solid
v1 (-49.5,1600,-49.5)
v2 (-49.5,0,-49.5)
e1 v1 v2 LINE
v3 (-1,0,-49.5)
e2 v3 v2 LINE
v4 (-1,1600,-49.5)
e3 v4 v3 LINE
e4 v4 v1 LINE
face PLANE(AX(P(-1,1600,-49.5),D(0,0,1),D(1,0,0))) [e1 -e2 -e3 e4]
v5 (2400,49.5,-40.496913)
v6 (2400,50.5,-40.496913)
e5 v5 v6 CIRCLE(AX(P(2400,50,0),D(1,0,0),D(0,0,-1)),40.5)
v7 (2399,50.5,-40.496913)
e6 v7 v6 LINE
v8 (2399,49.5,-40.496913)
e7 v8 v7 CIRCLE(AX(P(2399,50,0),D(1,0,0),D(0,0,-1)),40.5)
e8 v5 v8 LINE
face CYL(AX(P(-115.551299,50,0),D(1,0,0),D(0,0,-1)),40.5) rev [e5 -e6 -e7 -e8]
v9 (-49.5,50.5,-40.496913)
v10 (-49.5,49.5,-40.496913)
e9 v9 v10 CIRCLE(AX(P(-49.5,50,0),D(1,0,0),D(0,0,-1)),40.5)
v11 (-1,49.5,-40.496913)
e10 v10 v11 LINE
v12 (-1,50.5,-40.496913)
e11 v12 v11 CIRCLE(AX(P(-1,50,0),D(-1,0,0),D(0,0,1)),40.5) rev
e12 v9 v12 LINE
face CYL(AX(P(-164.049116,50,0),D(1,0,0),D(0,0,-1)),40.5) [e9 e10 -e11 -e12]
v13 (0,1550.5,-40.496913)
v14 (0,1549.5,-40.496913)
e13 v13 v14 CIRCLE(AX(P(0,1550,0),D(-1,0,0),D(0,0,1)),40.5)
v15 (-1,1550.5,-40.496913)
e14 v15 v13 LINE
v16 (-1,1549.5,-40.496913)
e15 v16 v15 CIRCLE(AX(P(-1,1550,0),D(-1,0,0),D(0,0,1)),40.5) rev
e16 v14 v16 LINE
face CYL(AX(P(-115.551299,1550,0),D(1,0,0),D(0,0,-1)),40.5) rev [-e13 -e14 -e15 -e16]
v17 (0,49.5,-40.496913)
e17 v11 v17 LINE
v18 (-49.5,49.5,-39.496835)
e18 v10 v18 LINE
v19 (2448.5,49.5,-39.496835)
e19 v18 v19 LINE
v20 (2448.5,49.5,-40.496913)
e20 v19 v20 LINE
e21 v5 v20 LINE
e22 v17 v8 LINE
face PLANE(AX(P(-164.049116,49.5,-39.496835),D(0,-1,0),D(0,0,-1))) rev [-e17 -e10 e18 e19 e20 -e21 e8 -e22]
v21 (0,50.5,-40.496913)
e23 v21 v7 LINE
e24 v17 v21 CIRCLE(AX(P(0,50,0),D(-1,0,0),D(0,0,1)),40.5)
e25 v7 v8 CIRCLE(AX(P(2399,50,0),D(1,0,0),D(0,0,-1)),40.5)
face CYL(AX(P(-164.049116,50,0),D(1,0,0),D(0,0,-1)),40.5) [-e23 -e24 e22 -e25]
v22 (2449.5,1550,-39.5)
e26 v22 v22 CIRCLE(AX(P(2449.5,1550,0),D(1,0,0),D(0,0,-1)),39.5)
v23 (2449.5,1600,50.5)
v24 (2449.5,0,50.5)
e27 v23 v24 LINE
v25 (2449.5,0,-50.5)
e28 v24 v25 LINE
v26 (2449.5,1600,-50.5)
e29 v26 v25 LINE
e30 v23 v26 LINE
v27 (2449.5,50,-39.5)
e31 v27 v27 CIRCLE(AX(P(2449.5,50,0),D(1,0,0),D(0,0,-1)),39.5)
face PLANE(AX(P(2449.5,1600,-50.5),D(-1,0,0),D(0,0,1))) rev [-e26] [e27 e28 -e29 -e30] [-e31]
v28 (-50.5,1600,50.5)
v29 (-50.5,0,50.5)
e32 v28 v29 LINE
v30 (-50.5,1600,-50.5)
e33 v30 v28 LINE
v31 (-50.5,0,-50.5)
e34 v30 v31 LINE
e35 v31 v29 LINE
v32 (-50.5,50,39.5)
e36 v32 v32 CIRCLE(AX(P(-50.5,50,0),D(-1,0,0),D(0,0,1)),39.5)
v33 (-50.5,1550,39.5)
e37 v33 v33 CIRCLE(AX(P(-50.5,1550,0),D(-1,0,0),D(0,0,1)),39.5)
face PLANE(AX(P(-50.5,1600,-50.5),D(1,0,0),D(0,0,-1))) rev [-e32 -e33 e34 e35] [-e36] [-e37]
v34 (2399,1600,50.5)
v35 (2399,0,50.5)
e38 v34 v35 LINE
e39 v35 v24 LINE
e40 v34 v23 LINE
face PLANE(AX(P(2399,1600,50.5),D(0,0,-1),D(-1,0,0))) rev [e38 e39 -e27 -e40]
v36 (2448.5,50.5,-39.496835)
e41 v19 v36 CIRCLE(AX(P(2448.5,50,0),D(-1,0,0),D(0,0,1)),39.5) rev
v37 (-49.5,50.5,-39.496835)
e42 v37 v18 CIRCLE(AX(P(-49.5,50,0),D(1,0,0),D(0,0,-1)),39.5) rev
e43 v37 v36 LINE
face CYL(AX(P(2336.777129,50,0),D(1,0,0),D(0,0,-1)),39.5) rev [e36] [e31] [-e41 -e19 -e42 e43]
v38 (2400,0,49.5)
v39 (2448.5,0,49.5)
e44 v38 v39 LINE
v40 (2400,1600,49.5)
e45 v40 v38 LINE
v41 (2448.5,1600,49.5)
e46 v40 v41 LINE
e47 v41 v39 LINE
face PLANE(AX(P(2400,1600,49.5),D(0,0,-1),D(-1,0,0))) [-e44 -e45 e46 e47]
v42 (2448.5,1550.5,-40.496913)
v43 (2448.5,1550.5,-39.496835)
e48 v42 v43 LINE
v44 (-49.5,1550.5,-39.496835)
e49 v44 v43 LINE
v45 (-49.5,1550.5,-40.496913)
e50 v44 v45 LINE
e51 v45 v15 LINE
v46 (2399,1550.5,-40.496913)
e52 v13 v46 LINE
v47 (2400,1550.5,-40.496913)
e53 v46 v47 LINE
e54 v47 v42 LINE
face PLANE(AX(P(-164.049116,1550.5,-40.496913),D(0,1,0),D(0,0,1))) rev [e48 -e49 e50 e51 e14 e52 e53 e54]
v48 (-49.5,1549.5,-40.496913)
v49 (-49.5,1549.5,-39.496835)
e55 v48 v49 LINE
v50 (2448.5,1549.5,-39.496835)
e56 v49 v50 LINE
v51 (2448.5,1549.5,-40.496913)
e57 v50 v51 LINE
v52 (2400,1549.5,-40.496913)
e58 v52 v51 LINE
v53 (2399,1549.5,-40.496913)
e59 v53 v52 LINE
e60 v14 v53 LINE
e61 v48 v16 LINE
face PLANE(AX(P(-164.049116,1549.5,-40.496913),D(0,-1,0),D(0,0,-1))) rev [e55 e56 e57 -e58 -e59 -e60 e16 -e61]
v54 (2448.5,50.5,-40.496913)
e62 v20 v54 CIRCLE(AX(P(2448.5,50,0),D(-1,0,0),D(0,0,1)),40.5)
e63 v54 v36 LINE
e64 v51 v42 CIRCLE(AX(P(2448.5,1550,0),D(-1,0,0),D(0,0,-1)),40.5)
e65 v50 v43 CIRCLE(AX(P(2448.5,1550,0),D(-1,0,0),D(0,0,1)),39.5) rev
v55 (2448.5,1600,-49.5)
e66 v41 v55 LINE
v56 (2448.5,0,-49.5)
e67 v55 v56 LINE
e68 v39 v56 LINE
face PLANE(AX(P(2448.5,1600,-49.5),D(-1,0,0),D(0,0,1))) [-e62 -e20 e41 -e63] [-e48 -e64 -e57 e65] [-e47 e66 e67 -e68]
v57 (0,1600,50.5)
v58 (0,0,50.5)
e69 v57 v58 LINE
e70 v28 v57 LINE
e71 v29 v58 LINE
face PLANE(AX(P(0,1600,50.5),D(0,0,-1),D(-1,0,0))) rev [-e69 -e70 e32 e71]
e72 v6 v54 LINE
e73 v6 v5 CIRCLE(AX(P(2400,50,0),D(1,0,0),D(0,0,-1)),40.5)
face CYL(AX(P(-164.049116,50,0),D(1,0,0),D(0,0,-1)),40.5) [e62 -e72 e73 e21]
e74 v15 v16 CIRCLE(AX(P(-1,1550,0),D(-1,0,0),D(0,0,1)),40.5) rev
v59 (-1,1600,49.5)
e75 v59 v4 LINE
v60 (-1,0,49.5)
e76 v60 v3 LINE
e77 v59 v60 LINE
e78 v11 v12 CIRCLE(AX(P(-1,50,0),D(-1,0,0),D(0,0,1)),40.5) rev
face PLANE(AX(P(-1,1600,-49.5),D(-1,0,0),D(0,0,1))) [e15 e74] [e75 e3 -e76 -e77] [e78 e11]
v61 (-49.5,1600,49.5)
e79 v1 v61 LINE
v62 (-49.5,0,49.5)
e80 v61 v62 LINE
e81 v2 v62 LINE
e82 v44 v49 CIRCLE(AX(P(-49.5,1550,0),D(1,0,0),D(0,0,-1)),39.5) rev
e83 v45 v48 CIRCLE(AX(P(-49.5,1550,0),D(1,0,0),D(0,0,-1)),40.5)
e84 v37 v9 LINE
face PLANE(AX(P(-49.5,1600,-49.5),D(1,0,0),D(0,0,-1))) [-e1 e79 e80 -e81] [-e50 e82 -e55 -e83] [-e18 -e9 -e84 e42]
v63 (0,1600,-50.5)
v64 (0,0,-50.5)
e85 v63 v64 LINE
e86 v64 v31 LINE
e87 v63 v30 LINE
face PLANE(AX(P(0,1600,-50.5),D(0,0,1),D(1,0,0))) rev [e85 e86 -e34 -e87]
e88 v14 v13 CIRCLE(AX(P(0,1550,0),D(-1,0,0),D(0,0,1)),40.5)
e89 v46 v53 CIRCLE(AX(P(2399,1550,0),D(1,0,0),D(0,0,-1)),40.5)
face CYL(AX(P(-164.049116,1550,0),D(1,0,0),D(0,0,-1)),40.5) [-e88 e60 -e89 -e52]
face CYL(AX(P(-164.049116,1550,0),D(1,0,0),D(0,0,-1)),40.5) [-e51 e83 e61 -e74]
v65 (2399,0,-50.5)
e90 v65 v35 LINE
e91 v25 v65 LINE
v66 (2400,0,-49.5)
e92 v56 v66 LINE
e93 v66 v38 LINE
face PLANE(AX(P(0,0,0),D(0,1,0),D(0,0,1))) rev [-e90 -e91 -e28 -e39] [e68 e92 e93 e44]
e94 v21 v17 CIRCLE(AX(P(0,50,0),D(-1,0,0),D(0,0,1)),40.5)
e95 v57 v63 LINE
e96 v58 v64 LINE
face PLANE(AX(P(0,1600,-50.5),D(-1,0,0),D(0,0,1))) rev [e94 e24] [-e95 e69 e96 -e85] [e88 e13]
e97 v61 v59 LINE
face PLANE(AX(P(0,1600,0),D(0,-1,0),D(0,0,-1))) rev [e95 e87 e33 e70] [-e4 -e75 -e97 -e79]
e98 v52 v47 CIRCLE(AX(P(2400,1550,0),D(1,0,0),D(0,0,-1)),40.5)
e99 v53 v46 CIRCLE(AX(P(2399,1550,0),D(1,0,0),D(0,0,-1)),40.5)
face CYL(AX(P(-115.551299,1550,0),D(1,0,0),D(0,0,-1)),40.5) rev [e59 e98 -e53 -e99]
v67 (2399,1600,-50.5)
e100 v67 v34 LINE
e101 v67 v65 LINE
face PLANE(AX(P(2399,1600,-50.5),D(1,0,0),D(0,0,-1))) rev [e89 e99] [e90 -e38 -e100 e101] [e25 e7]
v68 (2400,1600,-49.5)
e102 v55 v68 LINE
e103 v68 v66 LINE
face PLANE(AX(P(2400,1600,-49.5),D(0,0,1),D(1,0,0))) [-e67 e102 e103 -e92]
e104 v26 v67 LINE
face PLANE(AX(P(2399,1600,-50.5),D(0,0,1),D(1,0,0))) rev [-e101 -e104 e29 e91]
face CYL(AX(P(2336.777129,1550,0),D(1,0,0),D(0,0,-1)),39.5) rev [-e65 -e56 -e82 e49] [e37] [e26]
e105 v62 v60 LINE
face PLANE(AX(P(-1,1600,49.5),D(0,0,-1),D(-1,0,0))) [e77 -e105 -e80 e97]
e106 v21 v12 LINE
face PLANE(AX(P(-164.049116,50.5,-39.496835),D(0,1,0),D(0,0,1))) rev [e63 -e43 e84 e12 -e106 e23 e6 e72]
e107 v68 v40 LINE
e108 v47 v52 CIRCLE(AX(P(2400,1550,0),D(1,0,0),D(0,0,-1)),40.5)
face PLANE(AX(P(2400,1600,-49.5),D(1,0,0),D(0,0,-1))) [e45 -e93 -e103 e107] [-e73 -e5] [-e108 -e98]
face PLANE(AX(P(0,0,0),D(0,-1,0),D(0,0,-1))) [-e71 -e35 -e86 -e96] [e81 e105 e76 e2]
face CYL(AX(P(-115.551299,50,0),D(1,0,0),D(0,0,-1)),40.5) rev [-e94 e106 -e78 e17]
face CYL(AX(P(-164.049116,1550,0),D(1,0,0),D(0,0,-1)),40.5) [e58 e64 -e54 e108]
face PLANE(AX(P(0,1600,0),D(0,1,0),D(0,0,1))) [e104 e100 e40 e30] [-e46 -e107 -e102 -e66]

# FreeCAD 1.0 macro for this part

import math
import FreeCAD as App
import Part
import Sketcher

V = App.Vector
Q = App.Units.Quantity


def add_polygon(sketch, points):
    """Adds a closed chain of lines whose ends are joined by coincident constraints."""
    first, n = sketch.GeometryCount, len(points)
    for a, b in zip(points, points[1:] + points[:1]):
        sketch.addGeometry(Part.LineSegment(App.Vector(*a, 0), App.Vector(*b, 0)), False)
    for i in range(n):
        sketch.addConstraint(Sketcher.Constraint("Coincident", first + i, 2, first + (i + 1) % n, 1))

doc = App.newDocument("Part")
body = doc.addObject("PartDesign::Body", "Body")

sketch1 = body.newObject("Sketcher::SketchObject", "Sketch")
sketch1.AttachmentSupport = (doc.getObject("XZ_Plane"), [""])
sketch1.MapMode = "FlatFace"
add_polygon(sketch1, [(-50, -50), (-50, 50), (0, 50), (0, -50)])
add_polygon(sketch1, [(-1, 50), (-50, 50), (-50, -50), (-1, -50)])
sketch1.addConstraint([
    Sketcher.Constraint("Vertical", 0),
    Sketcher.Constraint("Horizontal", 1),
    Sketcher.Constraint("Vertical", 2),
    Sketcher.Constraint("Horizontal", 3),
    Sketcher.Constraint("Horizontal", 4),
    Sketcher.Constraint("Vertical", 5),
    Sketcher.Constraint("Horizontal", 6),
    Sketcher.Constraint("Vertical", 7),
    Sketcher.Constraint("Symmetric", 1, 2, 2, 2, -1, 1),
    Sketcher.Constraint("DistanceY", 0, 1, 0, 2, Q("101 mm")),
    Sketcher.Constraint("DistanceY", 5, 2, 5, 1, Q("99 mm")),
    Sketcher.Constraint("DistanceX", 1, 1, 1, 2, Q("50.5 mm")),
    Sketcher.Constraint("DistanceX", 4, 2, 4, 1, Q("48.5 mm")),
    Sketcher.Constraint("DistanceX", 6, 2, -1, 1, Q("1 mm")),
    Sketcher.Constraint("DistanceY", 4, 2, 0, 2, Q("1 mm")),
])
pad1 = body.newObject("PartDesign::Pad", "Pad")
pad1.Profile = sketch1
pad1.Length = 1600
pad1.Reversed = True

sketch2 = body.newObject("Sketcher::SketchObject", "Sketch001")
sketch2.AttachmentSupport = (doc.getObject("YZ_Plane"), [""])
sketch2.MapMode = "FlatFace"
sketch2.AttachmentOffset = App.Placement(V(0, 0, -50.5), App.Rotation())
sketch2.addGeometry([
    Part.Circle(V(50, 0, 0), V(0, 0, 1), 40),
    Part.Circle(V(1550, 0, 0), V(0, 0, 1), 40),
], False)
sketch2.addConstraint([
    Sketcher.Constraint("Equal", 0, 1),
    Sketcher.Constraint("PointOnObject", 0, 3, -1),
    Sketcher.Constraint("PointOnObject", 1, 3, -1),
    Sketcher.Constraint("Diameter", 0, Q("79 mm")),
    Sketcher.Constraint("DistanceX", -1, 1, 0, 3, Q("50 mm")),
    Sketcher.Constraint("DistanceX", -1, 1, 1, 3, Q("1550 mm")),
])
pocket1 = body.newObject("PartDesign::Pocket", "Pocket")
pocket1.Profile = sketch2
pocket1.Length = 1
pocket1.Reversed = True
body2 = doc.addObject("PartDesign::Body", "Body001")

sketch3 = body2.newObject("Sketcher::SketchObject", "Sketch002")
sketch3.AttachmentSupport = (doc.getObject("XZ_Plane001"), [""])
sketch3.MapMode = "FlatFace"
add_polygon(sketch3, [(2399, -50), (2399, 50), (2450, 50), (2450, -50)])
add_polygon(sketch3, [(2448, 50), (2400, 50), (2400, -50), (2448, -50)])
sketch3.addConstraint([
    Sketcher.Constraint("Vertical", 0),
    Sketcher.Constraint("Horizontal", 1),
    Sketcher.Constraint("Vertical", 2),
    Sketcher.Constraint("Horizontal", 3),
    Sketcher.Constraint("Horizontal", 4),
    Sketcher.Constraint("Vertical", 5),
    Sketcher.Constraint("Horizontal", 6),
    Sketcher.Constraint("Vertical", 7),
    Sketcher.Constraint("DistanceY", 0, 1, 0, 2, Q("101 mm")),
    Sketcher.Constraint("DistanceY", 5, 2, 5, 1, Q("99 mm")),
    Sketcher.Constraint("DistanceX", 1, 1, 1, 2, Q("50.5 mm")),
    Sketcher.Constraint("DistanceX", 4, 2, 4, 1, Q("48.5 mm")),
    Sketcher.Constraint("DistanceX", -1, 1, 0, 2, Q("2399 mm")),
    Sketcher.Constraint("DistanceX", -1, 1, 4, 2, Q("2400 mm")),
    Sketcher.Constraint("DistanceY", 4, 2, 0, 2, Q("1 mm")),
    Sketcher.Constraint("DistanceY", -1, 1, 0, 2, Q("50.5 mm")),
])
pad2 = body2.newObject("PartDesign::Pad", "Pad001")
pad2.Profile = sketch3
pad2.Length = 1600
pad2.Reversed = True

sketch4 = body2.newObject("Sketcher::SketchObject", "Sketch003")
sketch4.AttachmentSupport = (doc.getObject("YZ_Plane001"), [""])
sketch4.MapMode = "FlatFace"
sketch4.AttachmentOffset = App.Placement(V(0, 0, 2449.5), App.Rotation())
sketch4.addGeometry([
    Part.Circle(V(50, 0, 0), V(0, 0, 1), 40),
    Part.Circle(V(1550, 0, 0), V(0, 0, 1), 40),
], False)
sketch4.addConstraint([
    Sketcher.Constraint("Equal", 0, 1),
    Sketcher.Constraint("PointOnObject", 0, 3, -1),
    Sketcher.Constraint("PointOnObject", 1, 3, -1),
    Sketcher.Constraint("Diameter", 0, Q("79 mm")),
    Sketcher.Constraint("DistanceX", -1, 1, 0, 3, Q("50 mm")),
    Sketcher.Constraint("DistanceX", -1, 1, 1, 3, Q("1550 mm")),
])
pocket2 = body2.newObject("PartDesign::Pocket", "Pocket001")
pocket2.Profile = sketch4
pocket2.Length = 1
body3 = doc.addObject("PartDesign::Body", "Body002")
body3.AllowCompound = True

sketch5 = body3.newObject("Sketcher::SketchObject", "Sketch004")
sketch5.AttachmentSupport = (doc.getObject("YZ_Plane002"), [""])
sketch5.MapMode = "FlatFace"
sketch5.AttachmentOffset = App.Placement(V(0, 0, 2400), App.Rotation())
sketch5.addGeometry([
    Part.Circle(V(50, 0, 0), V(0, 0, 1), 40),
    Part.Circle(V(1550, 0, 0), V(0, 0, 1), 40),
], False)
sketch5.addConstraint([
    Sketcher.Constraint("Equal", 0, 1),
    Sketcher.Constraint("PointOnObject", 0, 3, -1),
    Sketcher.Constraint("PointOnObject", 1, 3, -1),
    Sketcher.Constraint("Diameter", 0, Q("81 mm")),
    Sketcher.Constraint("DistanceX", -1, 1, 0, 3, Q("50 mm")),
    Sketcher.Constraint("DistanceX", -1, 1, 1, 3, Q("1550 mm")),
])
pad3 = body3.newObject("PartDesign::Pad", "Pad002")
pad3.Profile = sketch5
pad3.Length = 2401
pad3.Reversed = True
doc.recompute()

body4 = doc.addObject("PartDesign::Body", "Body003")
body4.BaseFeature = body3
boolean = body.newObject("PartDesign::Boolean", "Boolean")
boolean.Type = "Cut"
boolean.addObjects([body4])
doc.recompute()

boolean2 = body2.newObject("PartDesign::Boolean", "Boolean001")
boolean2.Type = "Cut"
boolean2.addObjects([body3])
body.AllowCompound = True
doc.recompute()

boolean3 = body.newObject("PartDesign::Boolean", "Boolean002")
boolean3.Type = "Fuse"
boolean3.addObjects([body2])

sketch6 = body.newObject("Sketcher::SketchObject", "Sketch005")
sketch6.AttachmentSupport = (doc.getObject("YZ_Plane"), [""])
sketch6.MapMode = "FlatFace"
sketch6.AttachmentOffset = App.Placement(V(0, 0, 2448.5), App.Rotation())
sketch6.addGeometry([
    Part.LineSegment(V(50.5, -40.5, 0), V(50.5, -39.5, 0)),
    Part.ArcOfCircle(Part.Circle(V(50, 0, 0), V(0, 0, 1), 39.5), math.radians(-89), math.radians(269)),
    Part.LineSegment(V(49.5, -39.5, 0), V(49.5, -40.5, 0)),
    Part.ArcOfCircle(Part.Circle(V(50, 0, 0), V(0, 0, 1), 40.5), math.radians(-89), math.radians(269)),
    Part.LineSegment(V(1550.5, -40.5, 0), V(1550.5, -39.5, 0)),
    Part.ArcOfCircle(Part.Circle(V(1550, 0, 0), V(0, 0, 1), 39.5), math.radians(-89), math.radians(269)),
    Part.LineSegment(V(1549.5, -39.5, 0), V(1549.5, -40.5, 0)),
    Part.ArcOfCircle(Part.Circle(V(1550, 0, 0), V(0, 0, 1), 40.5), math.radians(-89), math.radians(269)),
], False)
sketch6.addConstraint([
    Sketcher.Constraint("Coincident", 0, 2, 1, 1),
    Sketcher.Constraint("Coincident", 1, 2, 2, 1),
    Sketcher.Constraint("Coincident", 2, 2, 3, 2),
    Sketcher.Constraint("Coincident", 3, 1, 0, 1),
    Sketcher.Constraint("Coincident", 4, 2, 5, 1),
    Sketcher.Constraint("Coincident", 5, 2, 6, 1),
    Sketcher.Constraint("Coincident", 6, 2, 7, 2),
    Sketcher.Constraint("Coincident", 7, 1, 4, 1),
    Sketcher.Constraint("Vertical", 0),
    Sketcher.Constraint("Vertical", 2),
    Sketcher.Constraint("Vertical", 4),
    Sketcher.Constraint("Vertical", 6),
    Sketcher.Constraint("Coincident", 3, 3, 1, 3),
    Sketcher.Constraint("Coincident", 7, 3, 5, 3),
    Sketcher.Constraint("Equal", 1, 5),
    Sketcher.Constraint("Equal", 3, 7),
    Sketcher.Constraint("PointOnObject", 1, 3, -1),
    Sketcher.Constraint("PointOnObject", 5, 3, -1),
    Sketcher.Constraint("Horizontal", 0, 2, 1, 2),
    Sketcher.Constraint("Horizontal", 1, 2, 4, 2),
    Sketcher.Constraint("Horizontal", 4, 2, 5, 2),
    Sketcher.Constraint("Radius", 1, Q("39.5 mm")),
    Sketcher.Constraint("Radius", 3, Q("40.5 mm")),
    Sketcher.Constraint("DistanceX", -1, 1, 1, 3, Q("50 mm")),
    Sketcher.Constraint("DistanceX", -1, 1, 5, 3, Q("1550 mm")),
    Sketcher.Constraint("DistanceX", 1, 2, 0, 2, Q("1 mm")),
])
pad4 = body.newObject("PartDesign::Pad", "Pad003")
pad4.Profile = sketch6
pad4.Length = 2498
pad4.Reversed = True

doc.recompute()
